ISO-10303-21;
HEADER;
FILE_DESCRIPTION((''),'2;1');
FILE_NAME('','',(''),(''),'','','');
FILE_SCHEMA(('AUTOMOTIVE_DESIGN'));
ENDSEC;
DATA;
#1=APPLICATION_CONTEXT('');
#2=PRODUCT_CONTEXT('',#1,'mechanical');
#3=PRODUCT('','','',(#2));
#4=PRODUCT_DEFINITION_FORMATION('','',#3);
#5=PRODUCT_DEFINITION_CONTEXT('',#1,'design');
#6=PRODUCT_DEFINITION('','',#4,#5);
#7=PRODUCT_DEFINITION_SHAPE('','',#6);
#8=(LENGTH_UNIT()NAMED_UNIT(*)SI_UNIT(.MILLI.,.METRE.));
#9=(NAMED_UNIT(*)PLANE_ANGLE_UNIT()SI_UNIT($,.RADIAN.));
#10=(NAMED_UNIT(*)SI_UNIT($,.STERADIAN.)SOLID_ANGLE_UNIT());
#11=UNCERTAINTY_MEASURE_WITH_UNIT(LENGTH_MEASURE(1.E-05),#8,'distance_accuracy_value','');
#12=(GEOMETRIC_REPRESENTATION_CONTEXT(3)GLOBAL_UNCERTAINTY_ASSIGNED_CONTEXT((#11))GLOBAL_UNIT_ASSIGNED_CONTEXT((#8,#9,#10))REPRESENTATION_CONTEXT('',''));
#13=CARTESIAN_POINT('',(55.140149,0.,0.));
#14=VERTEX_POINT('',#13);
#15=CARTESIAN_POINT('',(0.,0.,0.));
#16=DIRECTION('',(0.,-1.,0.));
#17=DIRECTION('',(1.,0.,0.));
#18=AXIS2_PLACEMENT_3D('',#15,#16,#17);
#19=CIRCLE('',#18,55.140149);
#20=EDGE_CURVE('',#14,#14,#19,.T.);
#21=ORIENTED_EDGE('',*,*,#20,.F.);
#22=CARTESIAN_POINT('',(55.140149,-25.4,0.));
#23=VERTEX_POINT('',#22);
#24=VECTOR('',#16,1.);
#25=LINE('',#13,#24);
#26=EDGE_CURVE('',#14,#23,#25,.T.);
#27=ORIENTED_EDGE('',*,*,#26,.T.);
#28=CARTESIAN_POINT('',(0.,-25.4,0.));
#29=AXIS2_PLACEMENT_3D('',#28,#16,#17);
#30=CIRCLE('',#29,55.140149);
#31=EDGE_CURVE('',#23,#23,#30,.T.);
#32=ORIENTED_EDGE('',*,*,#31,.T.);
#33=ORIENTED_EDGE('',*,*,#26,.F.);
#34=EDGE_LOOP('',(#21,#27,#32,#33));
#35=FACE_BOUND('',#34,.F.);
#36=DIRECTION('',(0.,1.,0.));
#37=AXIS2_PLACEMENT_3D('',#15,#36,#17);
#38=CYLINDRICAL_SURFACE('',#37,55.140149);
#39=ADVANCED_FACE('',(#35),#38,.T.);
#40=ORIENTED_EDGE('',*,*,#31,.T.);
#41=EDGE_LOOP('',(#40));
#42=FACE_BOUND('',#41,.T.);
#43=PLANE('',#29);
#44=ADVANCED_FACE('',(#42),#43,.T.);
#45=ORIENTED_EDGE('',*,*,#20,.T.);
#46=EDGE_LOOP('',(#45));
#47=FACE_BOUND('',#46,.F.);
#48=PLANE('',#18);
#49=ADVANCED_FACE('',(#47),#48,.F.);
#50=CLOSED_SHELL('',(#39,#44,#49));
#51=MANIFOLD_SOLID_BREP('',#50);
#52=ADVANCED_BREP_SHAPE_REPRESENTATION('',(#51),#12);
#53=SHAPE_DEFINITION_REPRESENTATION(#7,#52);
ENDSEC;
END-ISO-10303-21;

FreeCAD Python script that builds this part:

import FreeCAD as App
import Part
import Sketcher

V = App.Vector
Q = App.Units.Quantity


def add_polygon(sketch, points):
    """Adds a closed chain of lines whose ends are joined by coincident constraints."""
    first, n = sketch.GeometryCount, len(points)
    for a, b in zip(points, points[1:] + points[:1]):
        sketch.addGeometry(Part.LineSegment(App.Vector(*a, 0), App.Vector(*b, 0)), False)
    for i in range(n):
        sketch.addConstraint(Sketcher.Constraint("Coincident", first + i, 2, first + (i + 1) % n, 1))

doc = App.newDocument("Part")
params = doc.addObject("Spreadsheet::Sheet", "Params")
for row, (alias, value) in enumerate([
    ("pad1_length", "1 in"),
    ("pad2_length", "1 in"),
], start=1):
    params.set(f"A{row}", alias)
    params.set(f"B{row}", "=" + value)
    params.setAlias(f"B{row}", alias)

body = doc.addObject("PartDesign::Body", "Body")

# Sketch on XZ plane
sketch1 = body.newObject("Sketcher::SketchObject", "Sketch")
sketch1.AttachmentSupport = (doc.getObject("XZ_Plane"), [""])
sketch1.MapMode = "FlatFace"
sketch1.addGeometry(Part.Circle(V(0, 0, 0), V(0, 0, 1), 55), False)
sketch1.addConstraint([
    Sketcher.Constraint("Coincident", 0, 3, -1, 1),
    Sketcher.Constraint("Diameter", 0, Q("110.280298 mm")),
])
pad1 = body.newObject("PartDesign::Pad", "Pad")
pad1.Profile = sketch1
pad1.setExpression("Length", "Params.pad1_length")

# Sketch on XZ plane
sketch2 = body.newObject("Sketcher::SketchObject", "Sketch001")
sketch2.AttachmentSupport = (doc.getObject("XZ_Plane"), [""])
sketch2.MapMode = "FlatFace"
add_polygon(sketch2, [(-19, 20), (-19, -23), (22, -23), (22, 20)])  # lines 0-3
sketch2.addConstraint([
    Sketcher.Constraint("Vertical", 0),
    Sketcher.Constraint("Horizontal", 1),
    Sketcher.Constraint("Vertical", 2),
    Sketcher.Constraint("Horizontal", 3),
    Sketcher.Constraint("DistanceY", 0, 2, 0, 1, Q("42.177219 mm")),
    Sketcher.Constraint("DistanceX", 1, 1, 1, 2, Q("41.272126 mm")),
    Sketcher.Constraint("DistanceX", 0, 2, -1, 1, Q("19.187918 mm")),
    Sketcher.Constraint("DistanceY", 0, 2, -1, 1, Q("22.627264 mm")),
])
pad2 = body.newObject("PartDesign::Pad", "Pad001")
pad2.Profile = sketch2
pad2.setExpression("Length", "Params.pad2_length")

doc.recompute()
